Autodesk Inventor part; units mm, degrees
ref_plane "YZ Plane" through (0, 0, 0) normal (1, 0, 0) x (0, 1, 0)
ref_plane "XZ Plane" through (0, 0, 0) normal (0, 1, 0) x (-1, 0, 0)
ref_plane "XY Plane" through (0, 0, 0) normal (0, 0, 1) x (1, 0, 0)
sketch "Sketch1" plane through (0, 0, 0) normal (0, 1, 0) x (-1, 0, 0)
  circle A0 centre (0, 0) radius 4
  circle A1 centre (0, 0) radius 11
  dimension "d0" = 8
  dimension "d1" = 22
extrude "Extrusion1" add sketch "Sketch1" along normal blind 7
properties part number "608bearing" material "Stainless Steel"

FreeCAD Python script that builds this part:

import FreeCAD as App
import Part
import Sketcher
Q = App.Units.Quantity

doc = App.newDocument("Part")
body = doc.addObject("PartDesign::Body", "Body")

# Sketch on XZ plane
sketch1 = doc.addObject("Sketcher::SketchObject", "Sketch")
body.addObject(sketch1)
sketch1.AttachmentSupport = (doc.XZ_Plane, [""])
sketch1.MapMode = "FlatFace"
sketch1.addGeometry(Part.Circle(App.Vector(0, 0, 0), App.Vector(0, 0, 1), 11), False)
sketch1.addGeometry(Part.Circle(App.Vector(0, 0, 0), App.Vector(0, 0, 1), 4), False)
sketch1.addConstraint(Sketcher.Constraint("Coincident", 0, 3, -1, 1))
sketch1.addConstraint(Sketcher.Constraint("Coincident", 1, 3, -1, 1))
sketch1.addConstraint(Sketcher.Constraint("Diameter", 0, Q("22 mm")))
sketch1.addConstraint(Sketcher.Constraint("Diameter", 1, Q("8 mm")))
pad1 = doc.addObject("PartDesign::Pad", "Pad")
body.addObject(pad1)
pad1.Profile = sketch1
pad1.Length = 7
pad1.Reversed = True

doc.recompute()
